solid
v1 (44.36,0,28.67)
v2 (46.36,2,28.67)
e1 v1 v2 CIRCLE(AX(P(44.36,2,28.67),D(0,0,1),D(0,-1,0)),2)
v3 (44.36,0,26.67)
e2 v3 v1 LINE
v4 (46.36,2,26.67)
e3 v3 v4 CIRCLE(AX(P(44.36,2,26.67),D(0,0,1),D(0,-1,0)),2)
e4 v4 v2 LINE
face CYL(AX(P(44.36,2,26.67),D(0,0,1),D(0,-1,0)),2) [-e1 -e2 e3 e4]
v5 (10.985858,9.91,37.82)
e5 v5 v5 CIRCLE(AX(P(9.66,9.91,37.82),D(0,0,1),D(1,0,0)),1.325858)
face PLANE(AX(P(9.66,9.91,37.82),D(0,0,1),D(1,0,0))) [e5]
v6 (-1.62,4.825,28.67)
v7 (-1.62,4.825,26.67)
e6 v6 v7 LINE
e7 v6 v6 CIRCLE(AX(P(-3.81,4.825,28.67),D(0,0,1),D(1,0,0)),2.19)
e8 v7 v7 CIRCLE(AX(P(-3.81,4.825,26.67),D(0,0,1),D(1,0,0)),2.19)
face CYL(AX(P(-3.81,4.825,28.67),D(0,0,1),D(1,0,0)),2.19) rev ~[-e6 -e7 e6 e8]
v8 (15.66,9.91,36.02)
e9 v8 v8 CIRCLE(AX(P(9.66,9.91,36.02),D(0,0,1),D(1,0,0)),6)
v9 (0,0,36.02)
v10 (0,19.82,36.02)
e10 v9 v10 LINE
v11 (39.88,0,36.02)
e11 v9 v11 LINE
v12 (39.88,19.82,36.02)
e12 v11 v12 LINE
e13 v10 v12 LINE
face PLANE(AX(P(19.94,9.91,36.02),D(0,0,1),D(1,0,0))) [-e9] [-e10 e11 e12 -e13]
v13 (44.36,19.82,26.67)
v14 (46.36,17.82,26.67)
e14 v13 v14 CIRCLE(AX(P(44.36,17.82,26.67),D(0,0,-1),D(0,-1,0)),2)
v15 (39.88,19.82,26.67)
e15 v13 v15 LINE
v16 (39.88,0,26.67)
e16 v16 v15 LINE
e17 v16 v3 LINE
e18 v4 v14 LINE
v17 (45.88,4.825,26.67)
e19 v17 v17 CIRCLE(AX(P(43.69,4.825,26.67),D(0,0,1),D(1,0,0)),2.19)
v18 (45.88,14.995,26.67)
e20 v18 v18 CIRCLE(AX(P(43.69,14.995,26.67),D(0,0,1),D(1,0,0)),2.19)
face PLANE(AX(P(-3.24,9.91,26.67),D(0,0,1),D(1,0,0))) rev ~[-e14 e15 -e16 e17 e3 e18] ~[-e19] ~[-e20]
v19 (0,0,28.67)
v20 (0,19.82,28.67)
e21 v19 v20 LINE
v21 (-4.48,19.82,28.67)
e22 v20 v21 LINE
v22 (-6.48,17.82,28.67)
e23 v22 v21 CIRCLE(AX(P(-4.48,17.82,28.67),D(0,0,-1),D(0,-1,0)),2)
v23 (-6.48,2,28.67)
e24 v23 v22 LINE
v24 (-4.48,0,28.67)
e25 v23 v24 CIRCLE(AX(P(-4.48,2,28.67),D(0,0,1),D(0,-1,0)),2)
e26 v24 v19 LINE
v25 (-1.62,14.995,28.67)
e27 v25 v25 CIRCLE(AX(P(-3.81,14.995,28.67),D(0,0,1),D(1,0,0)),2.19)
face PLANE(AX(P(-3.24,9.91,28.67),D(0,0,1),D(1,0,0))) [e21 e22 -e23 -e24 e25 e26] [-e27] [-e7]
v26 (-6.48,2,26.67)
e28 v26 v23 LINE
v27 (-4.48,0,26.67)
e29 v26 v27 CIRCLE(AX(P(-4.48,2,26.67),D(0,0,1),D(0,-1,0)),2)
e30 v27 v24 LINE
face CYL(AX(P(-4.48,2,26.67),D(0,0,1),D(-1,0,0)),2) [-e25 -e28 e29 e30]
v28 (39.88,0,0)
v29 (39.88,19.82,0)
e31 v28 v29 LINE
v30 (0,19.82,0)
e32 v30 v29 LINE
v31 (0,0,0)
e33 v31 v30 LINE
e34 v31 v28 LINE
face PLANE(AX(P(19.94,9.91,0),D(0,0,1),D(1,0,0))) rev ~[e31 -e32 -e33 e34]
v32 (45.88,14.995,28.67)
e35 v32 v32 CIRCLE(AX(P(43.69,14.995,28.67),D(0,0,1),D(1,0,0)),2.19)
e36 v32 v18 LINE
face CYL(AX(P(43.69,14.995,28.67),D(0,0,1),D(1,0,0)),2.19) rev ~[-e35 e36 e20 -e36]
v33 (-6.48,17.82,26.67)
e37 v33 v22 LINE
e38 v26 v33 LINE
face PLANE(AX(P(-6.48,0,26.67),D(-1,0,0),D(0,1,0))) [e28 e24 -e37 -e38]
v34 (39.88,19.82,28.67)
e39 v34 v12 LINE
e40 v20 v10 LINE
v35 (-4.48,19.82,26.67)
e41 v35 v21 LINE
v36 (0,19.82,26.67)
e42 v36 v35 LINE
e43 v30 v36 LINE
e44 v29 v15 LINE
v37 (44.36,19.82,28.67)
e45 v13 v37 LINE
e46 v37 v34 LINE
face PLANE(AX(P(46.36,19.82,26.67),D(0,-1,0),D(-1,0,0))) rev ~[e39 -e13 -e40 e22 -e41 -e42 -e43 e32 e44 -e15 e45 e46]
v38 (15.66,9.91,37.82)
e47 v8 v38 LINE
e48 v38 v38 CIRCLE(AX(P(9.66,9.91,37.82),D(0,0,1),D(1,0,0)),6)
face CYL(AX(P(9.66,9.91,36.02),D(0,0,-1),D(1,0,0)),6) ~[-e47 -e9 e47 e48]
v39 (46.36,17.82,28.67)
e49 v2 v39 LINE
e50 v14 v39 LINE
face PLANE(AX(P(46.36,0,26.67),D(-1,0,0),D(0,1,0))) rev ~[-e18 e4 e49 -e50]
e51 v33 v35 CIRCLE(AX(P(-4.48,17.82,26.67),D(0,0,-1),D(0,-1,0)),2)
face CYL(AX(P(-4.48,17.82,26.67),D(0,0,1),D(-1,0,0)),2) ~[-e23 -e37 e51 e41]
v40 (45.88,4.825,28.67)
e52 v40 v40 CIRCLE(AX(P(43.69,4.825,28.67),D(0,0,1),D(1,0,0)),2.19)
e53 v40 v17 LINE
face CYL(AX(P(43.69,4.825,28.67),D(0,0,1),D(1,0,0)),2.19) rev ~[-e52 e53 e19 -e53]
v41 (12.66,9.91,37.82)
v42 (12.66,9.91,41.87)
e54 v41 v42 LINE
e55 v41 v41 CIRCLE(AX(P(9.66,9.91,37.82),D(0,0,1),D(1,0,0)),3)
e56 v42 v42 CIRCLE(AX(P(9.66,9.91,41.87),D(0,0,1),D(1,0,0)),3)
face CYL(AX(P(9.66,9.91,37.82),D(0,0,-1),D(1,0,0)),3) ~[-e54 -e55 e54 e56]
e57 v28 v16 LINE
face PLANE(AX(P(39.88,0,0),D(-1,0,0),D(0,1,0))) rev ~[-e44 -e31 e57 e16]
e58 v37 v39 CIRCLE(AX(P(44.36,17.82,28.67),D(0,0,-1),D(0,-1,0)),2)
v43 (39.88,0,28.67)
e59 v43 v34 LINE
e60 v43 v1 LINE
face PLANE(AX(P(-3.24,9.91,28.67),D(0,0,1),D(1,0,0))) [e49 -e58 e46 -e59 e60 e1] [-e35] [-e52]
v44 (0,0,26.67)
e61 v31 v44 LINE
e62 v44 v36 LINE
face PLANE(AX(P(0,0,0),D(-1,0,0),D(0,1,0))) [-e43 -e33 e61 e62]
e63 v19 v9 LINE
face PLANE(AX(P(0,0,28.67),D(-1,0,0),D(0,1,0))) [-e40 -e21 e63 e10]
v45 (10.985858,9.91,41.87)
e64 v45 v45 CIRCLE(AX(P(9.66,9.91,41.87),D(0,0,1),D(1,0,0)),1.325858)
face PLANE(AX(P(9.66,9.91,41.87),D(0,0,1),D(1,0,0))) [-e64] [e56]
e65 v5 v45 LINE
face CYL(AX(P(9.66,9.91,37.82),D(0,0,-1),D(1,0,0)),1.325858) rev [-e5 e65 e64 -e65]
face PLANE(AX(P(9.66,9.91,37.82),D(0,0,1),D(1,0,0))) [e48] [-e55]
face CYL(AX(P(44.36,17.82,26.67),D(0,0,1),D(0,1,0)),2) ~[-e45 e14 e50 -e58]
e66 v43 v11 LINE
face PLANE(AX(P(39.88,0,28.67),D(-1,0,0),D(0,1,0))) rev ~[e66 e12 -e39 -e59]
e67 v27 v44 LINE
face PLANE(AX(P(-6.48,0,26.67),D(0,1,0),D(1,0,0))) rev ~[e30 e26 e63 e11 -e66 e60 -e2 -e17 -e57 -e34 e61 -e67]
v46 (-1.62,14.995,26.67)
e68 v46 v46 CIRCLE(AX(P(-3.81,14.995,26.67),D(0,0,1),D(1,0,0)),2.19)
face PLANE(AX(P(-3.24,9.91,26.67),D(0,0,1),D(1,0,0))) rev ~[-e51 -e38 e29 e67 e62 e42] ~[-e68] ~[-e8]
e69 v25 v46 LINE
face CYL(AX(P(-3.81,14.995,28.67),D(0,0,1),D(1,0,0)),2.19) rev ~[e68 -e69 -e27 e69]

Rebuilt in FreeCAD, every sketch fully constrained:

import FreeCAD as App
import Part
import Sketcher
from FreeCAD import Vector


def edges_at(feature, points):
    """Names of the edges that pass closest to the given points."""
    edges = feature.Shape.Edges
    near = lambda p: min(range(len(edges)), key=lambda i: edges[i].distToShape(Part.Vertex(*p))[0])
    return sorted({f"Edge{near(p) + 1}" for p in points})


def add_polygon(sketch, points):
    """Adds a closed chain of lines whose ends are joined by coincident constraints."""
    first, n = sketch.GeometryCount, len(points)
    for a, b in zip(points, points[1:] + points[:1]):
        sketch.addGeometry(Part.LineSegment(App.Vector(*a, 0), App.Vector(*b, 0)), False)
    for i in range(n):
        sketch.addConstraint(Sketcher.Constraint("Coincident", first + i, 2, first + (i + 1) % n, 1))

doc = App.newDocument("Part")
params = doc.addObject("Spreadsheet::Sheet", "Params")
for row, (alias, value) in enumerate([
    ("sketch1_width", "39.88 mm"),
    ("sketch1_height", "19.82 mm"),
    ("pad1_length", "26.67 mm"),
    ("sketch2_width", "52.84 mm"),
    ("sketch2_height", "19.82 mm"),
    ("pad2_length", "2 mm"),
    ("sketch3_width", "39.88 mm"),
    ("sketch3_height", "19.82 mm"),
    ("pad3_length", "7.35 mm"),
    ("sketch4_diameter", "12 mm"),
    ("pad4_length", "1.8 mm"),
    ("sketch5_diameter", "6 mm"),
    ("pad5_length", "4.05 mm"),
    ("sketch6_diameter", "4.38 mm"),
    ("pocket1_length", "25 mm"),
    ("fillet_radius", "2 mm"),
], start=1):
    params.set(f"A{row}", alias)
    params.set(f"B{row}", "=" + value)
    params.setAlias(f"B{row}", alias)

body = doc.addObject("PartDesign::Body", "Body")

# Sketch on XY plane
sketch1 = doc.addObject("Sketcher::SketchObject", "Sketch")
body.addObject(sketch1)
sketch1.AttachmentSupport = (doc.XY_Plane, [""])
sketch1.MapMode = "FlatFace"
add_polygon(sketch1, [(0, 20), (0, 0), (40, 0), (40, 20)])  # lines 0-3
sketch1.addConstraint([
    Sketcher.Constraint("Vertical", 0),
    Sketcher.Constraint("Horizontal", 1),
    Sketcher.Constraint("Vertical", 2),
    Sketcher.Constraint("Horizontal", 3),
    Sketcher.Constraint("Coincident", 0, 2, -1, 1),
    Sketcher.Constraint("DistanceX", 1, 1, 1, 2, 39.88),
    Sketcher.Constraint("DistanceY", 0, 2, 0, 1, 19.82),
])
sketch1.setExpression("Constraints[9]", "Params.sketch1_width")
sketch1.setExpression("Constraints[10]", "Params.sketch1_height")
pad1 = doc.addObject("PartDesign::Pad", "Pad")
body.addObject(pad1)
pad1.Profile = sketch1
pad1.setExpression("Length", "Params.pad1_length")

# Sketch on XY plane
sketch2 = doc.addObject("Sketcher::SketchObject", "Sketch001")
body.addObject(sketch2)
sketch2.AttachmentSupport = (doc.XY_Plane, [""])
sketch2.MapMode = "FlatFace"
sketch2.AttachmentOffset = App.Placement(Vector(0, 0, 26.67), App.Rotation())
add_polygon(sketch2, [(-6, 20), (-6, 0), (46, 0), (46, 20)])  # lines 0-3
sketch2.addConstraint([
    Sketcher.Constraint("Vertical", 0),
    Sketcher.Constraint("Horizontal", 1),
    Sketcher.Constraint("Vertical", 2),
    Sketcher.Constraint("Horizontal", 3),
    Sketcher.Constraint("PointOnObject", 0, 2, -1),
    Sketcher.Constraint("DistanceX", 1, 1, 1, 2, 52.84),
    Sketcher.Constraint("DistanceY", 0, 2, 0, 1, 19.82),
    Sketcher.Constraint("DistanceX", 0, 2, -1, 1, 6.48),
])
sketch2.setExpression("Constraints[9]", "Params.sketch2_width")
sketch2.setExpression("Constraints[10]", "Params.sketch2_height")
pad2 = doc.addObject("PartDesign::Pad", "Pad001")
body.addObject(pad2)
pad2.Profile = sketch2
pad2.setExpression("Length", "Params.pad2_length")

# Sketch on XY plane
sketch3 = doc.addObject("Sketcher::SketchObject", "Sketch002")
body.addObject(sketch3)
sketch3.AttachmentSupport = (doc.XY_Plane, [""])
sketch3.MapMode = "FlatFace"
sketch3.AttachmentOffset = App.Placement(Vector(0, 0, 28.67), App.Rotation())
add_polygon(sketch3, [(0, 20), (0, 0), (40, 0), (40, 20)])  # lines 0-3
sketch3.addConstraint([
    Sketcher.Constraint("Vertical", 0),
    Sketcher.Constraint("Horizontal", 1),
    Sketcher.Constraint("Vertical", 2),
    Sketcher.Constraint("Horizontal", 3),
    Sketcher.Constraint("Coincident", 0, 2, -1, 1),
    Sketcher.Constraint("DistanceX", 1, 1, 1, 2, 39.88),
    Sketcher.Constraint("DistanceY", 0, 2, 0, 1, 19.82),
])
sketch3.setExpression("Constraints[9]", "Params.sketch3_width")
sketch3.setExpression("Constraints[10]", "Params.sketch3_height")
pad3 = doc.addObject("PartDesign::Pad", "Pad002")
body.addObject(pad3)
pad3.Profile = sketch3
pad3.setExpression("Length", "Params.pad3_length")

# Sketch on XY plane
sketch4 = doc.addObject("Sketcher::SketchObject", "Sketch003")
body.addObject(sketch4)
sketch4.AttachmentSupport = (doc.XY_Plane, [""])
sketch4.MapMode = "FlatFace"
sketch4.AttachmentOffset = App.Placement(Vector(0, 0, 36.02), App.Rotation())
sketch4.addGeometry(Part.Circle(Vector(10, 10, 0), Vector(0, 0, 1), 6), False)
sketch4.addConstraint([
    Sketcher.Constraint("Diameter", 0, 12.0),
    Sketcher.Constraint("DistanceX", -1, 1, 0, 3, 9.66),
    Sketcher.Constraint("DistanceY", -1, 1, 0, 3, 9.91),
])
sketch4.setExpression("Constraints[0]", "Params.sketch4_diameter")
pad4 = doc.addObject("PartDesign::Pad", "Pad003")
body.addObject(pad4)
pad4.Profile = sketch4
pad4.setExpression("Length", "Params.pad4_length")

# Sketch on XY plane
sketch5 = doc.addObject("Sketcher::SketchObject", "Sketch004")
body.addObject(sketch5)
sketch5.AttachmentSupport = (doc.XY_Plane, [""])
sketch5.MapMode = "FlatFace"
sketch5.AttachmentOffset = App.Placement(Vector(0, 0, 37.82), App.Rotation())
sketch5.addGeometry([
    Part.Circle(Vector(9.7, 9.9, 0), Vector(0, 0, 1), 3),
    Part.Circle(Vector(9.7, 9.9, 0), Vector(0, 0, 1), 1.3),
], False)
sketch5.addConstraint([
    Sketcher.Constraint("Coincident", 1, 3, 0, 3),
    Sketcher.Constraint("Diameter", 0, 6.0),
    Sketcher.Constraint("DistanceX", -1, 1, 0, 3, 9.66),
    Sketcher.Constraint("DistanceY", -1, 1, 0, 3, 9.91),
    Sketcher.Constraint("Diameter", 1, 2.651716),
])
sketch5.setExpression("Constraints[1]", "Params.sketch5_diameter")
pad5 = doc.addObject("PartDesign::Pad", "Pad004")
body.addObject(pad5)
pad5.Profile = sketch5
pad5.setExpression("Length", "Params.pad5_length")

# Sketch on XY plane
sketch6 = doc.addObject("Sketcher::SketchObject", "Sketch005")
body.addObject(sketch6)
sketch6.AttachmentSupport = (doc.XY_Plane, [""])
sketch6.MapMode = "FlatFace"
sketch6.AttachmentOffset = App.Placement(Vector(0, 0, 28.67), App.Rotation())
sketch6.addGeometry([
    Part.Circle(Vector(-3.8, 4.8, 0), Vector(0, 0, 1), 2.2),
    Part.Circle(Vector(-3.8, 15, 0), Vector(0, 0, 1), 2.2),
    Part.Circle(Vector(43.7, 4.8, 0), Vector(0, 0, 1), 2.2),
    Part.Circle(Vector(43.7, 15, 0), Vector(0, 0, 1), 2.2),
], False)
sketch6.addConstraint([
    Sketcher.Constraint("Equal", 0, 1),
    Sketcher.Constraint("Equal", 1, 2),
    Sketcher.Constraint("Equal", 2, 3),
    Sketcher.Constraint("Horizontal", 0, 3, 2, 3),
    Sketcher.Constraint("Horizontal", 1, 3, 3, 3),
    Sketcher.Constraint("Vertical", 0, 3, 1, 3),
    Sketcher.Constraint("Vertical", 2, 3, 3, 3),
    Sketcher.Constraint("Diameter", 0, 4.38),
    Sketcher.Constraint("DistanceX", 0, 3, 2, 3, 47.5),
    Sketcher.Constraint("DistanceX", 0, 3, -1, 1, 3.81),
    Sketcher.Constraint("DistanceY", 0, 3, 1, 3, 10.17),
    Sketcher.Constraint("DistanceY", -1, 1, 0, 3, 4.825),
])
sketch6.setExpression("Constraints[7]", "Params.sketch6_diameter")
pocket1 = doc.addObject("PartDesign::Pocket", "Pocket")
body.addObject(pocket1)
pocket1.Profile = sketch6
pocket1.setExpression("Length", "Params.pocket1_length")
doc.recompute()

fillet = doc.addObject("PartDesign::Fillet", "Fillet")
body.addObject(fillet)
fillet.Base = (pocket1, edges_at(pocket1, [
    (-6.48, 19.82, 27.67),
    (46.36, 19.82, 27.67),
    (46.36, 0, 27.67),
    (-6.48, 0, 27.67),
]))
fillet.setExpression("Radius", "Params.fillet_radius")

doc.recompute()
